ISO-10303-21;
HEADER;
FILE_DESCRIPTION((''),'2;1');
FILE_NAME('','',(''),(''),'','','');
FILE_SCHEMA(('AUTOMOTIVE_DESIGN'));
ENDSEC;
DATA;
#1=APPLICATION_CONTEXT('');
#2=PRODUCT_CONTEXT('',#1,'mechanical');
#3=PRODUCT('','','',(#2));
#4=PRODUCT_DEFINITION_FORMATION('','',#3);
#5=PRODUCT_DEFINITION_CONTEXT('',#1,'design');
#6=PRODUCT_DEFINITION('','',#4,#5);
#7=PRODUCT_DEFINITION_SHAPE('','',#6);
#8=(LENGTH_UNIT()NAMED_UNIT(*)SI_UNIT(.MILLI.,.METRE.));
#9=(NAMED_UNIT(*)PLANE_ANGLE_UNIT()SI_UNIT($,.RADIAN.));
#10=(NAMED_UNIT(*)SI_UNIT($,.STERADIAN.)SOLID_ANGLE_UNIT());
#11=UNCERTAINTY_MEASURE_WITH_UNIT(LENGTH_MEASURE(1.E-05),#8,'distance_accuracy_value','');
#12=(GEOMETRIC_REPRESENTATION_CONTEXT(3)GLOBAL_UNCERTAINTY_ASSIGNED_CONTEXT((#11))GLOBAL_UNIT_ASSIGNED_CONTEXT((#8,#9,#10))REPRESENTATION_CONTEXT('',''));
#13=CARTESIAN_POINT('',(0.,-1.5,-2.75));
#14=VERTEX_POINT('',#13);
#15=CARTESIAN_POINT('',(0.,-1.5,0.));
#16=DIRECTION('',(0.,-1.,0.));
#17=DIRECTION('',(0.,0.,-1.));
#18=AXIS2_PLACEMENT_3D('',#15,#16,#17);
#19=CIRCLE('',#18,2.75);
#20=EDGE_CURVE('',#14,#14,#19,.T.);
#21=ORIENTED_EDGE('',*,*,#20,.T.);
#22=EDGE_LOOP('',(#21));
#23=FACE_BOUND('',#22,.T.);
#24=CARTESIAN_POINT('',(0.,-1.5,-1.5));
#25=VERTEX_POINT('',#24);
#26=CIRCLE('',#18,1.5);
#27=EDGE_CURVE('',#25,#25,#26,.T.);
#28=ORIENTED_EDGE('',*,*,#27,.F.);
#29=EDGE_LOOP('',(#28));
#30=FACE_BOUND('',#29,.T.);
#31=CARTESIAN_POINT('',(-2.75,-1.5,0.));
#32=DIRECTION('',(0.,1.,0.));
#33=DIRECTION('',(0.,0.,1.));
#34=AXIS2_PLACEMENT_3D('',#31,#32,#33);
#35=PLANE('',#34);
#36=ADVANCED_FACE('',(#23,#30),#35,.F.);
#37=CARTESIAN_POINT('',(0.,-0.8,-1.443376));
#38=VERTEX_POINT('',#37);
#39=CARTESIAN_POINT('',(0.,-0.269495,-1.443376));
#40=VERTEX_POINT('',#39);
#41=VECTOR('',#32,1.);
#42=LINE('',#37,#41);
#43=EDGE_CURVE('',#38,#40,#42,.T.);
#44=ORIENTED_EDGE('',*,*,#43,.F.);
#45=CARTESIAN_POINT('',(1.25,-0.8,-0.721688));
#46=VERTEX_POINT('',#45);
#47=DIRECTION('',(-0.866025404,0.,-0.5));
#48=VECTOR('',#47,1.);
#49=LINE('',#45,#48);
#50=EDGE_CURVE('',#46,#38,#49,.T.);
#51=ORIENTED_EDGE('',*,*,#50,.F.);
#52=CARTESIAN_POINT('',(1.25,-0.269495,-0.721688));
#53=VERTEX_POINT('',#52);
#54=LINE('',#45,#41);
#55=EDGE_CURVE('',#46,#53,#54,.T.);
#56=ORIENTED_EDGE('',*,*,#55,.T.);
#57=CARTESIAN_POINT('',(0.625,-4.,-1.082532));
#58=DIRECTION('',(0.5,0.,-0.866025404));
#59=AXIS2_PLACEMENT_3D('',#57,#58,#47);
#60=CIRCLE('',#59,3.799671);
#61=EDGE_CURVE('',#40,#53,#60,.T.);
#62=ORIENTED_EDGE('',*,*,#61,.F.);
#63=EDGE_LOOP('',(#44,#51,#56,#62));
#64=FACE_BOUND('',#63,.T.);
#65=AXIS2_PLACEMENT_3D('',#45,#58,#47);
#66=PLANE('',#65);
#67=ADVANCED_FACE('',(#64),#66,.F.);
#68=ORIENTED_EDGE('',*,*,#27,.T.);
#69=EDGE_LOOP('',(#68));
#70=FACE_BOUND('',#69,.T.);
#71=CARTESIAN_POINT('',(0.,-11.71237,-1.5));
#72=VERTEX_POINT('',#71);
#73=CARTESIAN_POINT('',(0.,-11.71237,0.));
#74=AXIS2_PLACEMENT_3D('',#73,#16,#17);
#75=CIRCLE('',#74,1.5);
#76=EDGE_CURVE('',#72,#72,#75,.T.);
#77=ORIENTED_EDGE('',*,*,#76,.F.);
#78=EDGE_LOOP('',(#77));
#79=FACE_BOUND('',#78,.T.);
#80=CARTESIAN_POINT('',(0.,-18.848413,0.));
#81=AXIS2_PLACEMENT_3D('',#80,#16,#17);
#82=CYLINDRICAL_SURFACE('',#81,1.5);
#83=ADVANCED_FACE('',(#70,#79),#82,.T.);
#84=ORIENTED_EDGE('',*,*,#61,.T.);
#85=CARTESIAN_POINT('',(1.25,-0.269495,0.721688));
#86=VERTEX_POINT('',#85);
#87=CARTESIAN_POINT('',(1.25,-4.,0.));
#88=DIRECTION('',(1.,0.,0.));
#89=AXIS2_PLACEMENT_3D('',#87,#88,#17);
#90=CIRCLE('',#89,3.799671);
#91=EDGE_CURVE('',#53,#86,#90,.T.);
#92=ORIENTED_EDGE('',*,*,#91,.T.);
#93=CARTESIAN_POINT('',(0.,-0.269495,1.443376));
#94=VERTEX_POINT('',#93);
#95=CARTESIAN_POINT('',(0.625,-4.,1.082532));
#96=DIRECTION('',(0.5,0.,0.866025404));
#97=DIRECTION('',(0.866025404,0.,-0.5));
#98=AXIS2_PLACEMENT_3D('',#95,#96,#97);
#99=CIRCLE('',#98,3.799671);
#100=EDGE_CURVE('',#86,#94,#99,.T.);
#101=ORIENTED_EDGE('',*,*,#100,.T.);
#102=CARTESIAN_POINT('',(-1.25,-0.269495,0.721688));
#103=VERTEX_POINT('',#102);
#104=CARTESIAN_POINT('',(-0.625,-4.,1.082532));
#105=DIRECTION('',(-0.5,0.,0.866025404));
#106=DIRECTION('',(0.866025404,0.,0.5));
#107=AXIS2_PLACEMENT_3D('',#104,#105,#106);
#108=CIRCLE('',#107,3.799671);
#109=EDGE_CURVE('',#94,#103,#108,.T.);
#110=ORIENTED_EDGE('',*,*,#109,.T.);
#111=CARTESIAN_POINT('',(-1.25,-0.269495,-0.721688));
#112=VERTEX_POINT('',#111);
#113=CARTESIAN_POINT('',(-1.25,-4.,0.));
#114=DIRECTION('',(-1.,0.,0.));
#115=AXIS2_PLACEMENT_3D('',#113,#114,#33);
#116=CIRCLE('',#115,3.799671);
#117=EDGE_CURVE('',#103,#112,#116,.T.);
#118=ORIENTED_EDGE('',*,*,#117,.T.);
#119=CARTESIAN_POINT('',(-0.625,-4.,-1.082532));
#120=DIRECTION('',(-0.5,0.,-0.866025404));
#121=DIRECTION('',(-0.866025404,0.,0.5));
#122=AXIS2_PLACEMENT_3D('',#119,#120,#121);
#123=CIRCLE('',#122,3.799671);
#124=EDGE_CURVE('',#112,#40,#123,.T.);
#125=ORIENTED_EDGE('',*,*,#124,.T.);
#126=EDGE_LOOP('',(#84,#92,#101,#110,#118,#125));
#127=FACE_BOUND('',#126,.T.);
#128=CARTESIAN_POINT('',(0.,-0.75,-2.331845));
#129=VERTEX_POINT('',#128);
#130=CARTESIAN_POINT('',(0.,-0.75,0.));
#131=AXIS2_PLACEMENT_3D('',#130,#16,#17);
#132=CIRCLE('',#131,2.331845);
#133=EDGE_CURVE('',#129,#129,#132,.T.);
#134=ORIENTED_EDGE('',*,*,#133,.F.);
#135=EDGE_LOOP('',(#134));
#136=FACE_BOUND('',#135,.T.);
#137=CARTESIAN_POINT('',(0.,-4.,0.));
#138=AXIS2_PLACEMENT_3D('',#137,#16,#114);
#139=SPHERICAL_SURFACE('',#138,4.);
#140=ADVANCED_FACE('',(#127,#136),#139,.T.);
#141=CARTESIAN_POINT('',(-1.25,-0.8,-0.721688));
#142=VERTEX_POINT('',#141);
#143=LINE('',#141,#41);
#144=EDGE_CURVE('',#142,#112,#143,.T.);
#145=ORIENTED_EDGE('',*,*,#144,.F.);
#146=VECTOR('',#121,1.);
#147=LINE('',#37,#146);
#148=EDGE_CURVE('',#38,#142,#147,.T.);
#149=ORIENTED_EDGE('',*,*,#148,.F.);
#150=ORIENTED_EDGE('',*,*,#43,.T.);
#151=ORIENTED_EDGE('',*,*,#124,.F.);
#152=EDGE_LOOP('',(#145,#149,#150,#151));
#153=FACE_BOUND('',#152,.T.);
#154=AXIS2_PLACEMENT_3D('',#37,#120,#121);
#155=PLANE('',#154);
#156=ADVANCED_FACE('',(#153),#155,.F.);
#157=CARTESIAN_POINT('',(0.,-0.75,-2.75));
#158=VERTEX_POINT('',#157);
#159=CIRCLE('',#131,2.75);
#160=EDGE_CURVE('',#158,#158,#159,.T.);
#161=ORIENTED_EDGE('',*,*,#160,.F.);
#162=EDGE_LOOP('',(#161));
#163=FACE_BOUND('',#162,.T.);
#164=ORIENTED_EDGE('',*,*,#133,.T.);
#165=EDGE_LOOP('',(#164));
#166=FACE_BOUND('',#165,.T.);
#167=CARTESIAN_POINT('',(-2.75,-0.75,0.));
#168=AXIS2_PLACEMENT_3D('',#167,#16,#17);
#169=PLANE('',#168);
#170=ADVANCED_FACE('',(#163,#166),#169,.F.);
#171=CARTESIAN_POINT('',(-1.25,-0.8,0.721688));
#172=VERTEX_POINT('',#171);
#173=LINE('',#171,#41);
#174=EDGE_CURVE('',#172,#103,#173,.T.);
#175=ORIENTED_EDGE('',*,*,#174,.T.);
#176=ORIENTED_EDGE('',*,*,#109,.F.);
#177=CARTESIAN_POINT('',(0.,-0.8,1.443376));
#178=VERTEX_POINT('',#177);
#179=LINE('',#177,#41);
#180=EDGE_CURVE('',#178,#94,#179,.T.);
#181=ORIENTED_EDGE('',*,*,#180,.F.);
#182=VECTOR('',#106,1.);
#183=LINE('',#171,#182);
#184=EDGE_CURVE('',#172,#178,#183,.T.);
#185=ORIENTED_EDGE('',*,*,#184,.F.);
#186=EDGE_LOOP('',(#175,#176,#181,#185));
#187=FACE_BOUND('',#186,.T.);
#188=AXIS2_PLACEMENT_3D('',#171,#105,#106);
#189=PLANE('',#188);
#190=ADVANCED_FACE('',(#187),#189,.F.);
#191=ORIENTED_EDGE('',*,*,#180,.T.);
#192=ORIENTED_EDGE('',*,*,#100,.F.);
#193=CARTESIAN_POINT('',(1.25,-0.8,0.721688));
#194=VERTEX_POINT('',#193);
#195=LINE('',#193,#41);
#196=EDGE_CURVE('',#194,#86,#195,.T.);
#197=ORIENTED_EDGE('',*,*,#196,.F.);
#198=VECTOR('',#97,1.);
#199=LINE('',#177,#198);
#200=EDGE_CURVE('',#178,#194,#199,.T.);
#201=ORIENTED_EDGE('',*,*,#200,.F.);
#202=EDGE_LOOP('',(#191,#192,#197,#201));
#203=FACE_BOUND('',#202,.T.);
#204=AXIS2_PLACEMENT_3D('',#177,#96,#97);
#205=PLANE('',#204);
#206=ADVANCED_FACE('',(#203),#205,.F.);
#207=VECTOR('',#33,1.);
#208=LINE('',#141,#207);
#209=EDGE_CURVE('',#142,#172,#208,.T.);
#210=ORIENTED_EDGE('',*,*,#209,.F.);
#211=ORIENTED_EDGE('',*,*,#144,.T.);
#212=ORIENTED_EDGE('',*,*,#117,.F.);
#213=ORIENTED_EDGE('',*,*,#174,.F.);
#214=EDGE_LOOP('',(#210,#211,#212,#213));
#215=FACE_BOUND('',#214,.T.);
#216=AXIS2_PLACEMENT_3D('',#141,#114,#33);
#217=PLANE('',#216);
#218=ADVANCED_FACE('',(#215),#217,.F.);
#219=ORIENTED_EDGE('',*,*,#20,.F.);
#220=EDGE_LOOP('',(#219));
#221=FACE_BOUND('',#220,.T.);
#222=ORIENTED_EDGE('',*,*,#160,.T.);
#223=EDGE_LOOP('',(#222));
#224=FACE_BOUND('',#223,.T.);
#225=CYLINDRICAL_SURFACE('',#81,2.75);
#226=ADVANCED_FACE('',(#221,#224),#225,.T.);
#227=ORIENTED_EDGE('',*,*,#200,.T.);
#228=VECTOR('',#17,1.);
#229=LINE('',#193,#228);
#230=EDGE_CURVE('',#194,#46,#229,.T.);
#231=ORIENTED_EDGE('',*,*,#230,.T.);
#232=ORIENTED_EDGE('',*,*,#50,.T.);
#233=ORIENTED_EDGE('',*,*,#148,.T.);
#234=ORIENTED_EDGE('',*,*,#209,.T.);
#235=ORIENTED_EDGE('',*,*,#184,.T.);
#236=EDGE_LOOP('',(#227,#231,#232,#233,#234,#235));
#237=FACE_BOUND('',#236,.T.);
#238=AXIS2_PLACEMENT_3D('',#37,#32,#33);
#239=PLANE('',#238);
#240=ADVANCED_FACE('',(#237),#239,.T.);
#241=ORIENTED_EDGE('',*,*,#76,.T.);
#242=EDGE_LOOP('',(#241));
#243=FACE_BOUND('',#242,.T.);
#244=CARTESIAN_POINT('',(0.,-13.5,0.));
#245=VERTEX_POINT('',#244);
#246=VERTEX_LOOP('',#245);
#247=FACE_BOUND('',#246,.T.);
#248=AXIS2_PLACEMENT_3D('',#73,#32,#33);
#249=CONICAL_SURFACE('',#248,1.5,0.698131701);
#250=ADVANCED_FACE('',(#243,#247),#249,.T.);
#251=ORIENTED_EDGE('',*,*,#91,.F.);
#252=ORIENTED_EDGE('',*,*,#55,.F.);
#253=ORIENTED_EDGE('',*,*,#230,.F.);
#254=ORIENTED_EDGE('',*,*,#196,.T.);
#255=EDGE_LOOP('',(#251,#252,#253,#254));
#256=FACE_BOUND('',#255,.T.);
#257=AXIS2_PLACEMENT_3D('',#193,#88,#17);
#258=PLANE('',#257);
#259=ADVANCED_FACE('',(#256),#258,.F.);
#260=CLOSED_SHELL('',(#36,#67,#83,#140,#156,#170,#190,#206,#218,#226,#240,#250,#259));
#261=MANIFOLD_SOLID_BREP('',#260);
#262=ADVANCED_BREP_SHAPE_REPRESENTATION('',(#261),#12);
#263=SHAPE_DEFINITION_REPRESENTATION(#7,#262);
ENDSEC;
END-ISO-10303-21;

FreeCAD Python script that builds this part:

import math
import FreeCAD as App
import Part
import Sketcher
from FreeCAD import Vector
Q = App.Units.Quantity


def add_polygon(sketch, points):
    """Adds a closed chain of lines whose ends are joined by coincident constraints."""
    first, n = sketch.GeometryCount, len(points)
    for a, b in zip(points, points[1:] + points[:1]):
        sketch.addGeometry(Part.LineSegment(App.Vector(*a, 0), App.Vector(*b, 0)), False)
    for i in range(n):
        sketch.addConstraint(Sketcher.Constraint("Coincident", first + i, 2, first + (i + 1) % n, 1))

doc = App.newDocument("Part")
body = doc.addObject("PartDesign::Body", "Body")

# Sketch on XY plane
sketch1 = body.newObject("Sketcher::SketchObject", "Sketch")
sketch1.AttachmentSupport = (doc.getObject("XY_Plane"), [""])
sketch1.MapMode = "FlatFace"
sketch1.addGeometry([
    Part.LineSegment(Vector(-2.75, -1.5, 0), Vector(-1.5, -1.5, 0)),  # 0
    Part.LineSegment(Vector(-1.5, -1.5, 0), Vector(-1.5, -11.71, 0)),  # 1
    Part.LineSegment(Vector(-1.5, -11.71, 0), Vector(0, -13.5, 0)),  # 2
    Part.LineSegment(Vector(0, -13.5, 0), Vector(0, 0, 0)),  # 3
    Part.ArcOfCircle(Part.Circle(Vector(0, -4, 0), Vector(0, 0, 1), 4), math.radians(90), math.radians(126)),  # 4
    Part.LineSegment(Vector(-2.33, -0.75, 0), Vector(-2.75, -0.75, 0)),  # 5
    Part.LineSegment(Vector(-2.75, -0.75, 0), Vector(-2.75, -1.5, 0)),  # 6
], False)
sketch1.addConstraint([
    Sketcher.Constraint("Coincident", 0, 2, 1, 1),
    Sketcher.Constraint("Coincident", 1, 2, 2, 1),
    Sketcher.Constraint("Coincident", 2, 2, 3, 1),
    Sketcher.Constraint("Coincident", 3, 2, 4, 1),
    Sketcher.Constraint("Coincident", 4, 2, 5, 1),
    Sketcher.Constraint("Coincident", 5, 2, 6, 1),
    Sketcher.Constraint("Coincident", 6, 2, 0, 1),
    Sketcher.Constraint("Horizontal", 0),
    Sketcher.Constraint("Vertical", 1),
    Sketcher.Constraint("Vertical", 3),
    Sketcher.Constraint("Horizontal", 5),
    Sketcher.Constraint("Vertical", 6),
    Sketcher.Constraint("Coincident", 3, 2, -1, 1),
    Sketcher.Constraint("PointOnObject", 4, 3, -2),
    Sketcher.Constraint("Radius", 4, Q("4 mm")),
    Sketcher.Constraint("Angle", 2, Q("-50 deg")),
    Sketcher.Constraint("DistanceY", 3, 1, 3, 2, Q("13.5 mm")),
    Sketcher.Constraint("DistanceY", 2, 2, 0, 2, Q("12 mm")),
    Sketcher.Constraint("DistanceX", 0, 1, 0, 2, Q("1.25 mm")),
    Sketcher.Constraint("DistanceY", 6, 2, 6, 1, Q("0.75 mm")),
    Sketcher.Constraint("DistanceX", 0, 2, -1, 1, Q("1.5 mm")),
])
revolution = body.newObject("PartDesign::Revolution", "Revolution")
revolution.Profile = sketch1
revolution.ReferenceAxis = (sketch1, ["V_Axis"])
revolution.Angle = 360

# Sketch on XZ plane
sketch2 = body.newObject("Sketcher::SketchObject", "Sketch001")
sketch2.AttachmentSupport = (doc.getObject("XZ_Plane"), [""])
sketch2.MapMode = "FlatFace"
add_polygon(sketch2, [(0, -1.4), (-1.2, -0.7), (-1.2, 0.7), (0, 1.4), (1.2, 0.7), (1.2, -0.7)])  # lines 0-5
sketch2.addConstraint([
    Sketcher.Constraint("Vertical", 1),
    Sketcher.Constraint("Vertical", 4),
    Sketcher.Constraint("Symmetric", 0, 2, 3, 2, -1, 1),
    Sketcher.Constraint("Symmetric", 2, 2, 5, 2, -1, 1),
    Sketcher.Constraint("PointOnObject", 2, 2, -2),
    Sketcher.Constraint("Parallel", 2, 5),
    Sketcher.Constraint("Horizontal", 1, 2, 3, 2),
    Sketcher.Constraint("Angle", 0, Q("150 deg")),
    Sketcher.Constraint("DistanceX", 1, 2, 3, 2, Q("2.5 mm")),
    Sketcher.Constraint("DistanceY", 1, 1, 1, 2, Q("1.443376 mm")),
])
pocket1 = body.newObject("PartDesign::Pocket", "Pocket")
pocket1.Profile = sketch2
pocket1.Length = 0.8
pocket1.Reversed = True

doc.recompute()
